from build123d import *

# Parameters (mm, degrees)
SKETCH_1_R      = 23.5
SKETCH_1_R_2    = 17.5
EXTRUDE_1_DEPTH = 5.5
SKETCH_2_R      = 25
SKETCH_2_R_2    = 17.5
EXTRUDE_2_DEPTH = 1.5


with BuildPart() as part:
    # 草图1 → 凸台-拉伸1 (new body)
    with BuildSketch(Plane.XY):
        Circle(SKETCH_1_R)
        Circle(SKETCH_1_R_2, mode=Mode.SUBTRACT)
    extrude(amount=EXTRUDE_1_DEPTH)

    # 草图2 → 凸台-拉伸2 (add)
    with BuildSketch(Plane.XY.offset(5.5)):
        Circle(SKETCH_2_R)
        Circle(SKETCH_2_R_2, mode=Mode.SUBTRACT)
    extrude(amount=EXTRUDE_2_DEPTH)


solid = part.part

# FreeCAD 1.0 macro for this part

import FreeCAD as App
import Part
import Sketcher

V = App.Vector
Q = App.Units.Quantity

doc = App.newDocument("Part")
body = doc.addObject("PartDesign::Body", "Body")

# Sketch on XY plane
sketch1 = body.newObject("Sketcher::SketchObject", "Sketch")
sketch1.AttachmentSupport = (doc.getObject("XY_Plane"), [""])
sketch1.MapMode = "FlatFace"
sketch1.addGeometry([
    Part.Circle(V(0, 0, 0), V(0, 0, 1), 24),
    Part.Circle(V(0, 0, 0), V(0, 0, 1), 18),
], False)
sketch1.addConstraint([
    Sketcher.Constraint("Coincident", 0, 3, -1, 1),
    Sketcher.Constraint("Coincident", 1, 3, -1, 1),
    Sketcher.Constraint("Diameter", 0, Q("47 mm")),
    Sketcher.Constraint("Diameter", 1, Q("35 mm")),
])
pad1 = body.newObject("PartDesign::Pad", "Pad")
pad1.Profile = sketch1
pad1.Length = 5.5

# Sketch on XY plane
sketch2 = body.newObject("Sketcher::SketchObject", "Sketch001")
sketch2.AttachmentSupport = (doc.getObject("XY_Plane"), [""])
sketch2.MapMode = "FlatFace"
sketch2.AttachmentOffset = App.Placement(V(0, 0, 5.5), App.Rotation())
sketch2.addGeometry([
    Part.Circle(V(0, 0, 0), V(0, 0, 1), 25),
    Part.Circle(V(0, 0, 0), V(0, 0, 1), 18),
], False)
sketch2.addConstraint([
    Sketcher.Constraint("Coincident", 0, 3, -1, 1),
    Sketcher.Constraint("Coincident", 1, 3, -1, 1),
    Sketcher.Constraint("Diameter", 0, Q("50 mm")),
    Sketcher.Constraint("Diameter", 1, Q("35 mm")),
])
pad2 = body.newObject("PartDesign::Pad", "Pad001")
pad2.Profile = sketch2
pad2.Length = 1.5

doc.recompute()
